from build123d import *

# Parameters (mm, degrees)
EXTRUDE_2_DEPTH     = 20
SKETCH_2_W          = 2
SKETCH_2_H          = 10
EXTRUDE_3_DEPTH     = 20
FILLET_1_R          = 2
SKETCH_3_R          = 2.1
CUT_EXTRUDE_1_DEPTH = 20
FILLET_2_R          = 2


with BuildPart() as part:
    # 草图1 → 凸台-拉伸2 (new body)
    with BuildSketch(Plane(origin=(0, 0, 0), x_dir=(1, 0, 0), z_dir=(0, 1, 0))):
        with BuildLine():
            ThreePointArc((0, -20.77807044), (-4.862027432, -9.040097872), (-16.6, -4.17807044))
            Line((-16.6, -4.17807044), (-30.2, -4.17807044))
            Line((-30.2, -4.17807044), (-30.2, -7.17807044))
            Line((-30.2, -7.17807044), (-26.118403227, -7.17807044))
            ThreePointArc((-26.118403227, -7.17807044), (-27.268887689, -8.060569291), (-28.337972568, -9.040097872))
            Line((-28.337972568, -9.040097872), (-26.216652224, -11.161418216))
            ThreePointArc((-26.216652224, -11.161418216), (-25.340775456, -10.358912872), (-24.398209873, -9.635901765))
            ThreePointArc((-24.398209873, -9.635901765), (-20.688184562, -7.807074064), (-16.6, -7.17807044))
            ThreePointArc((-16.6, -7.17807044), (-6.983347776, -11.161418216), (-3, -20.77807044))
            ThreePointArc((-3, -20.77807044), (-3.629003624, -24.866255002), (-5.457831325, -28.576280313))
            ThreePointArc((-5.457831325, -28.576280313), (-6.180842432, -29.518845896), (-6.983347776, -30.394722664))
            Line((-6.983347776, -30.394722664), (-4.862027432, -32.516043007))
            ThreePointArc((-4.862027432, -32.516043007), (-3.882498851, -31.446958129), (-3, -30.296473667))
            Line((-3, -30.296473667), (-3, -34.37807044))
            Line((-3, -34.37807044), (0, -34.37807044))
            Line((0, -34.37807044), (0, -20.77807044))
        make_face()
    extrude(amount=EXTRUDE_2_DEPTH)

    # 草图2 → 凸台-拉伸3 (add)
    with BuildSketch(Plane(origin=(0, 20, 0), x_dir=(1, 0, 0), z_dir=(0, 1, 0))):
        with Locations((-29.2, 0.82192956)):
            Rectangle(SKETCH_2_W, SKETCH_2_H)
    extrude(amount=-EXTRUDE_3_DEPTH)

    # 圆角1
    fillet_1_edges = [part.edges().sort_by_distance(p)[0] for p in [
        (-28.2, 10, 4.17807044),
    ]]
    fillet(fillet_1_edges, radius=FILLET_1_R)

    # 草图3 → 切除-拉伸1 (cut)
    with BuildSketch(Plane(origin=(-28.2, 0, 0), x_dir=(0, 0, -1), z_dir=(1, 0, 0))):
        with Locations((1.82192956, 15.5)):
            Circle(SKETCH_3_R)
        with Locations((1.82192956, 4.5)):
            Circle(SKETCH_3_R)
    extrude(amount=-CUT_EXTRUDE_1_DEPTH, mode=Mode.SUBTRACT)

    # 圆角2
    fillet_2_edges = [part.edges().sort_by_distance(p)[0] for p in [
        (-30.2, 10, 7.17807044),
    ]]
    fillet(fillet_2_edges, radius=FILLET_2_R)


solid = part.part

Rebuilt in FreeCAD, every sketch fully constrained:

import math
import FreeCAD as App
import Part
import Sketcher
from FreeCAD import Vector
Q = App.Units.Quantity


def edges_at(feature, points):
    """Names of the edges that pass closest to the given points."""
    edges = feature.Shape.Edges
    near = lambda p: min(range(len(edges)), key=lambda i: edges[i].distToShape(Part.Vertex(*p))[0])
    return sorted({f"Edge{near(p) + 1}" for p in points})


def add_polygon(sketch, points):
    """Adds a closed chain of lines whose ends are joined by coincident constraints."""
    first, n = sketch.GeometryCount, len(points)
    for a, b in zip(points, points[1:] + points[:1]):
        sketch.addGeometry(Part.LineSegment(App.Vector(*a, 0), App.Vector(*b, 0)), False)
    for i in range(n):
        sketch.addConstraint(Sketcher.Constraint("Coincident", first + i, 2, first + (i + 1) % n, 1))

doc = App.newDocument("Part")
body = doc.addObject("PartDesign::Body", "Body")

sketch1 = body.newObject("Sketcher::SketchObject", "Sketch")
sketch1.AttachmentSupport = (doc.getObject("XZ_Plane"), [""])
sketch1.MapMode = "FlatFace"
sketch1.addGeometry([
    Part.ArcOfCircle(Part.Circle(Vector(-16.6, 20.8, 0), Vector(0, 0, 1), 16.6), math.radians(-90), math.radians(0)),
    Part.LineSegment(Vector(-16.6, 4.2, 0), Vector(-30.2, 4.2, 0)),
    Part.LineSegment(Vector(-30.2, 4.2, 0), Vector(-30.2, 7.2, 0)),
    Part.LineSegment(Vector(-30.2, 7.2, 0), Vector(-26.1, 7.2, 0)),
    Part.ArcOfCircle(Part.Circle(Vector(-16.6, 20.8, 0), Vector(0, 0, 1), 16.6), math.radians(-135), math.radians(-124.99)),
    Part.LineSegment(Vector(-28.3, 9, 0), Vector(-26.2, 11.2, 0)),
    Part.ArcOfCircle(Part.Circle(Vector(-16.6, 20.8, 0), Vector(0, 0, 1), 13.6), math.radians(-135), math.radians(-124.99)),
    Part.ArcOfCircle(Part.Circle(Vector(-16.6, 20.8, 0), Vector(0, 0, 1), 13.6), math.radians(-125), math.radians(-90)),
    Part.ArcOfCircle(Part.Circle(Vector(-16.6, 20.8, 0), Vector(0, 0, 1), 13.6), math.radians(-90), math.radians(0)),
    Part.ArcOfCircle(Part.Circle(Vector(-16.6, 20.8, 0), Vector(0, 0, 1), 13.6), math.radians(0), math.radians(35)),
    Part.ArcOfCircle(Part.Circle(Vector(-16.6, 20.8, 0), Vector(0, 0, 1), 13.6), math.radians(34.99), math.radians(45)),
    Part.LineSegment(Vector(-7, 30.4, 0), Vector(-4.9, 32.5, 0)),
    Part.ArcOfCircle(Part.Circle(Vector(-16.6, 20.8, 0), Vector(0, 0, 1), 16.6), math.radians(34.99), math.radians(45)),
    Part.LineSegment(Vector(-3, 30.3, 0), Vector(-3, 34.4, 0)),
    Part.LineSegment(Vector(-3, 34.4, 0), Vector(0, 34.4, 0)),
    Part.LineSegment(Vector(0, 34.4, 0), Vector(0, 20.8, 0)),
], False)
sketch1.addConstraint([
    Sketcher.Constraint("Tangent", 0, 1, 1, 1),
    Sketcher.Constraint("Coincident", 1, 2, 2, 1),
    Sketcher.Constraint("Coincident", 2, 2, 3, 1),
    Sketcher.Constraint("Coincident", 3, 2, 4, 2),
    Sketcher.Constraint("Coincident", 4, 1, 5, 1),
    Sketcher.Constraint("Coincident", 5, 2, 6, 1),
    Sketcher.Constraint("Tangent", 6, 2, 7, 1),
    Sketcher.Constraint("Tangent", 7, 2, 8, 1),
    Sketcher.Constraint("Tangent", 8, 2, 9, 1),
    Sketcher.Constraint("Tangent", 9, 2, 10, 1),
    Sketcher.Constraint("Coincident", 10, 2, 11, 1),
    Sketcher.Constraint("Coincident", 11, 2, 12, 2),
    Sketcher.Constraint("Coincident", 12, 1, 13, 1),
    Sketcher.Constraint("Coincident", 13, 2, 14, 1),
    Sketcher.Constraint("Coincident", 14, 2, 15, 1),
    Sketcher.Constraint("Tangent", 15, 2, 0, 2),
    Sketcher.Constraint("Horizontal", 1),
    Sketcher.Constraint("Vertical", 2),
    Sketcher.Constraint("Horizontal", 3),
    Sketcher.Constraint("Vertical", 13),
    Sketcher.Constraint("Horizontal", 14),
    Sketcher.Constraint("Vertical", 15),
    Sketcher.Constraint("Coincident", 4, 3, 0, 3),
    Sketcher.Constraint("Coincident", 6, 3, 0, 3),
    Sketcher.Constraint("Coincident", 8, 3, 0, 3),
    Sketcher.Constraint("Coincident", 10, 3, 0, 3),
    Sketcher.Constraint("Coincident", 12, 3, 0, 3),
    Sketcher.Constraint("Equal", 0, 4),
    Sketcher.Constraint("Equal", 4, 12),
    Sketcher.Constraint("PointOnObject", 14, 2, -2),
    Sketcher.Constraint("Parallel", 5, 11),
    Sketcher.Constraint("Horizontal", 3, 2, 7, 2),
    Sketcher.Constraint("Horizontal", 12, 3, 8, 2),
    Sketcher.Constraint("Vertical", 0, 1, 7, 2),
    Sketcher.Constraint("Vertical", 8, 2, 12, 1),
    Sketcher.Constraint("Equal", 3, 13),
    Sketcher.Constraint("Radius", 0, 16.6),
    Sketcher.Constraint("Radius", 6, 13.6),
    Sketcher.Constraint("Angle", 5, Q("45 deg")),
    Sketcher.Constraint("DistanceX", 1, 2, 1, 1, 13.6),
    Sketcher.Constraint("DistanceY", -1, 1, 6, 2, 9.635902),
    Sketcher.Constraint("DistanceY", -1, 1, 0, 3, 20.77807),
    Sketcher.Constraint("DistanceY", -1, 1, 5, 2, 11.161418),
    Sketcher.Constraint("DistanceX", 9, 2, -1, 1, 5.457831),
    Sketcher.Constraint("DistanceY", 12, 1, 11, 2, 2.219569),
])
pad1 = body.newObject("PartDesign::Pad", "Pad")
pad1.Profile = sketch1
pad1.Length = 20
pad1.Reversed = True

sketch2 = body.newObject("Sketcher::SketchObject", "Sketch001")
sketch2.AttachmentSupport = (doc.getObject("XZ_Plane"), [""])
sketch2.MapMode = "FlatFace"
sketch2.AttachmentOffset = App.Placement(Vector(0, 0, -20), App.Rotation())
add_polygon(sketch2, [(-30.2, -5.8), (-30.2, 4.2), (-28.2, 4.2), (-28.2, -5.8)])
sketch2.addConstraint([
    Sketcher.Constraint("Vertical", 0),
    Sketcher.Constraint("Horizontal", 1),
    Sketcher.Constraint("Vertical", 2),
    Sketcher.Constraint("Horizontal", 3),
    Sketcher.Constraint("DistanceX", 1, 1, 1, 2, 2.0),
    Sketcher.Constraint("DistanceY", 0, 1, 0, 2, 10.0),
    Sketcher.Constraint("DistanceX", 0, 2, -1, 1, 30.2),
    Sketcher.Constraint("DistanceY", -1, 1, 0, 2, 4.17807),
])
pad2 = body.newObject("PartDesign::Pad", "Pad001")
pad2.Profile = sketch2
pad2.Length = 20
doc.recompute()

fillet = body.newObject("PartDesign::Fillet", "Fillet")
fillet.Base = (pad2, edges_at(pad2, [(-28.2, 10, 4.178)]))
fillet.Radius = 2

sketch3 = body.newObject("Sketcher::SketchObject", "Sketch002")
sketch3.AttachmentSupport = (doc.getObject("YZ_Plane"), [""])
sketch3.MapMode = "FlatFace"
sketch3.AttachmentOffset = App.Placement(Vector(0, 0, -28.2), App.Rotation())
sketch3.addGeometry([
    Part.Circle(Vector(15.5, -1.8, 0), Vector(0, 0, 1), 2.1),
    Part.Circle(Vector(4.5, -1.8, 0), Vector(0, 0, 1), 2.1),
], False)
sketch3.addConstraint([
    Sketcher.Constraint("Equal", 0, 1),
    Sketcher.Constraint("Horizontal", 0, 3, 1, 3),
    Sketcher.Constraint("Diameter", 0, 4.2),
    Sketcher.Constraint("DistanceX", 1, 3, 0, 3, 11.0),
    Sketcher.Constraint("DistanceX", -1, 1, 0, 3, 15.5),
    Sketcher.Constraint("DistanceY", 0, 3, -1, 1, 1.82193),
])
pocket1 = body.newObject("PartDesign::Pocket", "Pocket")
pocket1.Profile = sketch3
pocket1.Length = 20
doc.recompute()

fillet2 = body.newObject("PartDesign::Fillet", "Fillet001")
fillet2.Base = (pocket1, edges_at(pocket1, [(-30.2, 10, 7.178)]))
fillet2.Radius = 2

doc.recompute()
